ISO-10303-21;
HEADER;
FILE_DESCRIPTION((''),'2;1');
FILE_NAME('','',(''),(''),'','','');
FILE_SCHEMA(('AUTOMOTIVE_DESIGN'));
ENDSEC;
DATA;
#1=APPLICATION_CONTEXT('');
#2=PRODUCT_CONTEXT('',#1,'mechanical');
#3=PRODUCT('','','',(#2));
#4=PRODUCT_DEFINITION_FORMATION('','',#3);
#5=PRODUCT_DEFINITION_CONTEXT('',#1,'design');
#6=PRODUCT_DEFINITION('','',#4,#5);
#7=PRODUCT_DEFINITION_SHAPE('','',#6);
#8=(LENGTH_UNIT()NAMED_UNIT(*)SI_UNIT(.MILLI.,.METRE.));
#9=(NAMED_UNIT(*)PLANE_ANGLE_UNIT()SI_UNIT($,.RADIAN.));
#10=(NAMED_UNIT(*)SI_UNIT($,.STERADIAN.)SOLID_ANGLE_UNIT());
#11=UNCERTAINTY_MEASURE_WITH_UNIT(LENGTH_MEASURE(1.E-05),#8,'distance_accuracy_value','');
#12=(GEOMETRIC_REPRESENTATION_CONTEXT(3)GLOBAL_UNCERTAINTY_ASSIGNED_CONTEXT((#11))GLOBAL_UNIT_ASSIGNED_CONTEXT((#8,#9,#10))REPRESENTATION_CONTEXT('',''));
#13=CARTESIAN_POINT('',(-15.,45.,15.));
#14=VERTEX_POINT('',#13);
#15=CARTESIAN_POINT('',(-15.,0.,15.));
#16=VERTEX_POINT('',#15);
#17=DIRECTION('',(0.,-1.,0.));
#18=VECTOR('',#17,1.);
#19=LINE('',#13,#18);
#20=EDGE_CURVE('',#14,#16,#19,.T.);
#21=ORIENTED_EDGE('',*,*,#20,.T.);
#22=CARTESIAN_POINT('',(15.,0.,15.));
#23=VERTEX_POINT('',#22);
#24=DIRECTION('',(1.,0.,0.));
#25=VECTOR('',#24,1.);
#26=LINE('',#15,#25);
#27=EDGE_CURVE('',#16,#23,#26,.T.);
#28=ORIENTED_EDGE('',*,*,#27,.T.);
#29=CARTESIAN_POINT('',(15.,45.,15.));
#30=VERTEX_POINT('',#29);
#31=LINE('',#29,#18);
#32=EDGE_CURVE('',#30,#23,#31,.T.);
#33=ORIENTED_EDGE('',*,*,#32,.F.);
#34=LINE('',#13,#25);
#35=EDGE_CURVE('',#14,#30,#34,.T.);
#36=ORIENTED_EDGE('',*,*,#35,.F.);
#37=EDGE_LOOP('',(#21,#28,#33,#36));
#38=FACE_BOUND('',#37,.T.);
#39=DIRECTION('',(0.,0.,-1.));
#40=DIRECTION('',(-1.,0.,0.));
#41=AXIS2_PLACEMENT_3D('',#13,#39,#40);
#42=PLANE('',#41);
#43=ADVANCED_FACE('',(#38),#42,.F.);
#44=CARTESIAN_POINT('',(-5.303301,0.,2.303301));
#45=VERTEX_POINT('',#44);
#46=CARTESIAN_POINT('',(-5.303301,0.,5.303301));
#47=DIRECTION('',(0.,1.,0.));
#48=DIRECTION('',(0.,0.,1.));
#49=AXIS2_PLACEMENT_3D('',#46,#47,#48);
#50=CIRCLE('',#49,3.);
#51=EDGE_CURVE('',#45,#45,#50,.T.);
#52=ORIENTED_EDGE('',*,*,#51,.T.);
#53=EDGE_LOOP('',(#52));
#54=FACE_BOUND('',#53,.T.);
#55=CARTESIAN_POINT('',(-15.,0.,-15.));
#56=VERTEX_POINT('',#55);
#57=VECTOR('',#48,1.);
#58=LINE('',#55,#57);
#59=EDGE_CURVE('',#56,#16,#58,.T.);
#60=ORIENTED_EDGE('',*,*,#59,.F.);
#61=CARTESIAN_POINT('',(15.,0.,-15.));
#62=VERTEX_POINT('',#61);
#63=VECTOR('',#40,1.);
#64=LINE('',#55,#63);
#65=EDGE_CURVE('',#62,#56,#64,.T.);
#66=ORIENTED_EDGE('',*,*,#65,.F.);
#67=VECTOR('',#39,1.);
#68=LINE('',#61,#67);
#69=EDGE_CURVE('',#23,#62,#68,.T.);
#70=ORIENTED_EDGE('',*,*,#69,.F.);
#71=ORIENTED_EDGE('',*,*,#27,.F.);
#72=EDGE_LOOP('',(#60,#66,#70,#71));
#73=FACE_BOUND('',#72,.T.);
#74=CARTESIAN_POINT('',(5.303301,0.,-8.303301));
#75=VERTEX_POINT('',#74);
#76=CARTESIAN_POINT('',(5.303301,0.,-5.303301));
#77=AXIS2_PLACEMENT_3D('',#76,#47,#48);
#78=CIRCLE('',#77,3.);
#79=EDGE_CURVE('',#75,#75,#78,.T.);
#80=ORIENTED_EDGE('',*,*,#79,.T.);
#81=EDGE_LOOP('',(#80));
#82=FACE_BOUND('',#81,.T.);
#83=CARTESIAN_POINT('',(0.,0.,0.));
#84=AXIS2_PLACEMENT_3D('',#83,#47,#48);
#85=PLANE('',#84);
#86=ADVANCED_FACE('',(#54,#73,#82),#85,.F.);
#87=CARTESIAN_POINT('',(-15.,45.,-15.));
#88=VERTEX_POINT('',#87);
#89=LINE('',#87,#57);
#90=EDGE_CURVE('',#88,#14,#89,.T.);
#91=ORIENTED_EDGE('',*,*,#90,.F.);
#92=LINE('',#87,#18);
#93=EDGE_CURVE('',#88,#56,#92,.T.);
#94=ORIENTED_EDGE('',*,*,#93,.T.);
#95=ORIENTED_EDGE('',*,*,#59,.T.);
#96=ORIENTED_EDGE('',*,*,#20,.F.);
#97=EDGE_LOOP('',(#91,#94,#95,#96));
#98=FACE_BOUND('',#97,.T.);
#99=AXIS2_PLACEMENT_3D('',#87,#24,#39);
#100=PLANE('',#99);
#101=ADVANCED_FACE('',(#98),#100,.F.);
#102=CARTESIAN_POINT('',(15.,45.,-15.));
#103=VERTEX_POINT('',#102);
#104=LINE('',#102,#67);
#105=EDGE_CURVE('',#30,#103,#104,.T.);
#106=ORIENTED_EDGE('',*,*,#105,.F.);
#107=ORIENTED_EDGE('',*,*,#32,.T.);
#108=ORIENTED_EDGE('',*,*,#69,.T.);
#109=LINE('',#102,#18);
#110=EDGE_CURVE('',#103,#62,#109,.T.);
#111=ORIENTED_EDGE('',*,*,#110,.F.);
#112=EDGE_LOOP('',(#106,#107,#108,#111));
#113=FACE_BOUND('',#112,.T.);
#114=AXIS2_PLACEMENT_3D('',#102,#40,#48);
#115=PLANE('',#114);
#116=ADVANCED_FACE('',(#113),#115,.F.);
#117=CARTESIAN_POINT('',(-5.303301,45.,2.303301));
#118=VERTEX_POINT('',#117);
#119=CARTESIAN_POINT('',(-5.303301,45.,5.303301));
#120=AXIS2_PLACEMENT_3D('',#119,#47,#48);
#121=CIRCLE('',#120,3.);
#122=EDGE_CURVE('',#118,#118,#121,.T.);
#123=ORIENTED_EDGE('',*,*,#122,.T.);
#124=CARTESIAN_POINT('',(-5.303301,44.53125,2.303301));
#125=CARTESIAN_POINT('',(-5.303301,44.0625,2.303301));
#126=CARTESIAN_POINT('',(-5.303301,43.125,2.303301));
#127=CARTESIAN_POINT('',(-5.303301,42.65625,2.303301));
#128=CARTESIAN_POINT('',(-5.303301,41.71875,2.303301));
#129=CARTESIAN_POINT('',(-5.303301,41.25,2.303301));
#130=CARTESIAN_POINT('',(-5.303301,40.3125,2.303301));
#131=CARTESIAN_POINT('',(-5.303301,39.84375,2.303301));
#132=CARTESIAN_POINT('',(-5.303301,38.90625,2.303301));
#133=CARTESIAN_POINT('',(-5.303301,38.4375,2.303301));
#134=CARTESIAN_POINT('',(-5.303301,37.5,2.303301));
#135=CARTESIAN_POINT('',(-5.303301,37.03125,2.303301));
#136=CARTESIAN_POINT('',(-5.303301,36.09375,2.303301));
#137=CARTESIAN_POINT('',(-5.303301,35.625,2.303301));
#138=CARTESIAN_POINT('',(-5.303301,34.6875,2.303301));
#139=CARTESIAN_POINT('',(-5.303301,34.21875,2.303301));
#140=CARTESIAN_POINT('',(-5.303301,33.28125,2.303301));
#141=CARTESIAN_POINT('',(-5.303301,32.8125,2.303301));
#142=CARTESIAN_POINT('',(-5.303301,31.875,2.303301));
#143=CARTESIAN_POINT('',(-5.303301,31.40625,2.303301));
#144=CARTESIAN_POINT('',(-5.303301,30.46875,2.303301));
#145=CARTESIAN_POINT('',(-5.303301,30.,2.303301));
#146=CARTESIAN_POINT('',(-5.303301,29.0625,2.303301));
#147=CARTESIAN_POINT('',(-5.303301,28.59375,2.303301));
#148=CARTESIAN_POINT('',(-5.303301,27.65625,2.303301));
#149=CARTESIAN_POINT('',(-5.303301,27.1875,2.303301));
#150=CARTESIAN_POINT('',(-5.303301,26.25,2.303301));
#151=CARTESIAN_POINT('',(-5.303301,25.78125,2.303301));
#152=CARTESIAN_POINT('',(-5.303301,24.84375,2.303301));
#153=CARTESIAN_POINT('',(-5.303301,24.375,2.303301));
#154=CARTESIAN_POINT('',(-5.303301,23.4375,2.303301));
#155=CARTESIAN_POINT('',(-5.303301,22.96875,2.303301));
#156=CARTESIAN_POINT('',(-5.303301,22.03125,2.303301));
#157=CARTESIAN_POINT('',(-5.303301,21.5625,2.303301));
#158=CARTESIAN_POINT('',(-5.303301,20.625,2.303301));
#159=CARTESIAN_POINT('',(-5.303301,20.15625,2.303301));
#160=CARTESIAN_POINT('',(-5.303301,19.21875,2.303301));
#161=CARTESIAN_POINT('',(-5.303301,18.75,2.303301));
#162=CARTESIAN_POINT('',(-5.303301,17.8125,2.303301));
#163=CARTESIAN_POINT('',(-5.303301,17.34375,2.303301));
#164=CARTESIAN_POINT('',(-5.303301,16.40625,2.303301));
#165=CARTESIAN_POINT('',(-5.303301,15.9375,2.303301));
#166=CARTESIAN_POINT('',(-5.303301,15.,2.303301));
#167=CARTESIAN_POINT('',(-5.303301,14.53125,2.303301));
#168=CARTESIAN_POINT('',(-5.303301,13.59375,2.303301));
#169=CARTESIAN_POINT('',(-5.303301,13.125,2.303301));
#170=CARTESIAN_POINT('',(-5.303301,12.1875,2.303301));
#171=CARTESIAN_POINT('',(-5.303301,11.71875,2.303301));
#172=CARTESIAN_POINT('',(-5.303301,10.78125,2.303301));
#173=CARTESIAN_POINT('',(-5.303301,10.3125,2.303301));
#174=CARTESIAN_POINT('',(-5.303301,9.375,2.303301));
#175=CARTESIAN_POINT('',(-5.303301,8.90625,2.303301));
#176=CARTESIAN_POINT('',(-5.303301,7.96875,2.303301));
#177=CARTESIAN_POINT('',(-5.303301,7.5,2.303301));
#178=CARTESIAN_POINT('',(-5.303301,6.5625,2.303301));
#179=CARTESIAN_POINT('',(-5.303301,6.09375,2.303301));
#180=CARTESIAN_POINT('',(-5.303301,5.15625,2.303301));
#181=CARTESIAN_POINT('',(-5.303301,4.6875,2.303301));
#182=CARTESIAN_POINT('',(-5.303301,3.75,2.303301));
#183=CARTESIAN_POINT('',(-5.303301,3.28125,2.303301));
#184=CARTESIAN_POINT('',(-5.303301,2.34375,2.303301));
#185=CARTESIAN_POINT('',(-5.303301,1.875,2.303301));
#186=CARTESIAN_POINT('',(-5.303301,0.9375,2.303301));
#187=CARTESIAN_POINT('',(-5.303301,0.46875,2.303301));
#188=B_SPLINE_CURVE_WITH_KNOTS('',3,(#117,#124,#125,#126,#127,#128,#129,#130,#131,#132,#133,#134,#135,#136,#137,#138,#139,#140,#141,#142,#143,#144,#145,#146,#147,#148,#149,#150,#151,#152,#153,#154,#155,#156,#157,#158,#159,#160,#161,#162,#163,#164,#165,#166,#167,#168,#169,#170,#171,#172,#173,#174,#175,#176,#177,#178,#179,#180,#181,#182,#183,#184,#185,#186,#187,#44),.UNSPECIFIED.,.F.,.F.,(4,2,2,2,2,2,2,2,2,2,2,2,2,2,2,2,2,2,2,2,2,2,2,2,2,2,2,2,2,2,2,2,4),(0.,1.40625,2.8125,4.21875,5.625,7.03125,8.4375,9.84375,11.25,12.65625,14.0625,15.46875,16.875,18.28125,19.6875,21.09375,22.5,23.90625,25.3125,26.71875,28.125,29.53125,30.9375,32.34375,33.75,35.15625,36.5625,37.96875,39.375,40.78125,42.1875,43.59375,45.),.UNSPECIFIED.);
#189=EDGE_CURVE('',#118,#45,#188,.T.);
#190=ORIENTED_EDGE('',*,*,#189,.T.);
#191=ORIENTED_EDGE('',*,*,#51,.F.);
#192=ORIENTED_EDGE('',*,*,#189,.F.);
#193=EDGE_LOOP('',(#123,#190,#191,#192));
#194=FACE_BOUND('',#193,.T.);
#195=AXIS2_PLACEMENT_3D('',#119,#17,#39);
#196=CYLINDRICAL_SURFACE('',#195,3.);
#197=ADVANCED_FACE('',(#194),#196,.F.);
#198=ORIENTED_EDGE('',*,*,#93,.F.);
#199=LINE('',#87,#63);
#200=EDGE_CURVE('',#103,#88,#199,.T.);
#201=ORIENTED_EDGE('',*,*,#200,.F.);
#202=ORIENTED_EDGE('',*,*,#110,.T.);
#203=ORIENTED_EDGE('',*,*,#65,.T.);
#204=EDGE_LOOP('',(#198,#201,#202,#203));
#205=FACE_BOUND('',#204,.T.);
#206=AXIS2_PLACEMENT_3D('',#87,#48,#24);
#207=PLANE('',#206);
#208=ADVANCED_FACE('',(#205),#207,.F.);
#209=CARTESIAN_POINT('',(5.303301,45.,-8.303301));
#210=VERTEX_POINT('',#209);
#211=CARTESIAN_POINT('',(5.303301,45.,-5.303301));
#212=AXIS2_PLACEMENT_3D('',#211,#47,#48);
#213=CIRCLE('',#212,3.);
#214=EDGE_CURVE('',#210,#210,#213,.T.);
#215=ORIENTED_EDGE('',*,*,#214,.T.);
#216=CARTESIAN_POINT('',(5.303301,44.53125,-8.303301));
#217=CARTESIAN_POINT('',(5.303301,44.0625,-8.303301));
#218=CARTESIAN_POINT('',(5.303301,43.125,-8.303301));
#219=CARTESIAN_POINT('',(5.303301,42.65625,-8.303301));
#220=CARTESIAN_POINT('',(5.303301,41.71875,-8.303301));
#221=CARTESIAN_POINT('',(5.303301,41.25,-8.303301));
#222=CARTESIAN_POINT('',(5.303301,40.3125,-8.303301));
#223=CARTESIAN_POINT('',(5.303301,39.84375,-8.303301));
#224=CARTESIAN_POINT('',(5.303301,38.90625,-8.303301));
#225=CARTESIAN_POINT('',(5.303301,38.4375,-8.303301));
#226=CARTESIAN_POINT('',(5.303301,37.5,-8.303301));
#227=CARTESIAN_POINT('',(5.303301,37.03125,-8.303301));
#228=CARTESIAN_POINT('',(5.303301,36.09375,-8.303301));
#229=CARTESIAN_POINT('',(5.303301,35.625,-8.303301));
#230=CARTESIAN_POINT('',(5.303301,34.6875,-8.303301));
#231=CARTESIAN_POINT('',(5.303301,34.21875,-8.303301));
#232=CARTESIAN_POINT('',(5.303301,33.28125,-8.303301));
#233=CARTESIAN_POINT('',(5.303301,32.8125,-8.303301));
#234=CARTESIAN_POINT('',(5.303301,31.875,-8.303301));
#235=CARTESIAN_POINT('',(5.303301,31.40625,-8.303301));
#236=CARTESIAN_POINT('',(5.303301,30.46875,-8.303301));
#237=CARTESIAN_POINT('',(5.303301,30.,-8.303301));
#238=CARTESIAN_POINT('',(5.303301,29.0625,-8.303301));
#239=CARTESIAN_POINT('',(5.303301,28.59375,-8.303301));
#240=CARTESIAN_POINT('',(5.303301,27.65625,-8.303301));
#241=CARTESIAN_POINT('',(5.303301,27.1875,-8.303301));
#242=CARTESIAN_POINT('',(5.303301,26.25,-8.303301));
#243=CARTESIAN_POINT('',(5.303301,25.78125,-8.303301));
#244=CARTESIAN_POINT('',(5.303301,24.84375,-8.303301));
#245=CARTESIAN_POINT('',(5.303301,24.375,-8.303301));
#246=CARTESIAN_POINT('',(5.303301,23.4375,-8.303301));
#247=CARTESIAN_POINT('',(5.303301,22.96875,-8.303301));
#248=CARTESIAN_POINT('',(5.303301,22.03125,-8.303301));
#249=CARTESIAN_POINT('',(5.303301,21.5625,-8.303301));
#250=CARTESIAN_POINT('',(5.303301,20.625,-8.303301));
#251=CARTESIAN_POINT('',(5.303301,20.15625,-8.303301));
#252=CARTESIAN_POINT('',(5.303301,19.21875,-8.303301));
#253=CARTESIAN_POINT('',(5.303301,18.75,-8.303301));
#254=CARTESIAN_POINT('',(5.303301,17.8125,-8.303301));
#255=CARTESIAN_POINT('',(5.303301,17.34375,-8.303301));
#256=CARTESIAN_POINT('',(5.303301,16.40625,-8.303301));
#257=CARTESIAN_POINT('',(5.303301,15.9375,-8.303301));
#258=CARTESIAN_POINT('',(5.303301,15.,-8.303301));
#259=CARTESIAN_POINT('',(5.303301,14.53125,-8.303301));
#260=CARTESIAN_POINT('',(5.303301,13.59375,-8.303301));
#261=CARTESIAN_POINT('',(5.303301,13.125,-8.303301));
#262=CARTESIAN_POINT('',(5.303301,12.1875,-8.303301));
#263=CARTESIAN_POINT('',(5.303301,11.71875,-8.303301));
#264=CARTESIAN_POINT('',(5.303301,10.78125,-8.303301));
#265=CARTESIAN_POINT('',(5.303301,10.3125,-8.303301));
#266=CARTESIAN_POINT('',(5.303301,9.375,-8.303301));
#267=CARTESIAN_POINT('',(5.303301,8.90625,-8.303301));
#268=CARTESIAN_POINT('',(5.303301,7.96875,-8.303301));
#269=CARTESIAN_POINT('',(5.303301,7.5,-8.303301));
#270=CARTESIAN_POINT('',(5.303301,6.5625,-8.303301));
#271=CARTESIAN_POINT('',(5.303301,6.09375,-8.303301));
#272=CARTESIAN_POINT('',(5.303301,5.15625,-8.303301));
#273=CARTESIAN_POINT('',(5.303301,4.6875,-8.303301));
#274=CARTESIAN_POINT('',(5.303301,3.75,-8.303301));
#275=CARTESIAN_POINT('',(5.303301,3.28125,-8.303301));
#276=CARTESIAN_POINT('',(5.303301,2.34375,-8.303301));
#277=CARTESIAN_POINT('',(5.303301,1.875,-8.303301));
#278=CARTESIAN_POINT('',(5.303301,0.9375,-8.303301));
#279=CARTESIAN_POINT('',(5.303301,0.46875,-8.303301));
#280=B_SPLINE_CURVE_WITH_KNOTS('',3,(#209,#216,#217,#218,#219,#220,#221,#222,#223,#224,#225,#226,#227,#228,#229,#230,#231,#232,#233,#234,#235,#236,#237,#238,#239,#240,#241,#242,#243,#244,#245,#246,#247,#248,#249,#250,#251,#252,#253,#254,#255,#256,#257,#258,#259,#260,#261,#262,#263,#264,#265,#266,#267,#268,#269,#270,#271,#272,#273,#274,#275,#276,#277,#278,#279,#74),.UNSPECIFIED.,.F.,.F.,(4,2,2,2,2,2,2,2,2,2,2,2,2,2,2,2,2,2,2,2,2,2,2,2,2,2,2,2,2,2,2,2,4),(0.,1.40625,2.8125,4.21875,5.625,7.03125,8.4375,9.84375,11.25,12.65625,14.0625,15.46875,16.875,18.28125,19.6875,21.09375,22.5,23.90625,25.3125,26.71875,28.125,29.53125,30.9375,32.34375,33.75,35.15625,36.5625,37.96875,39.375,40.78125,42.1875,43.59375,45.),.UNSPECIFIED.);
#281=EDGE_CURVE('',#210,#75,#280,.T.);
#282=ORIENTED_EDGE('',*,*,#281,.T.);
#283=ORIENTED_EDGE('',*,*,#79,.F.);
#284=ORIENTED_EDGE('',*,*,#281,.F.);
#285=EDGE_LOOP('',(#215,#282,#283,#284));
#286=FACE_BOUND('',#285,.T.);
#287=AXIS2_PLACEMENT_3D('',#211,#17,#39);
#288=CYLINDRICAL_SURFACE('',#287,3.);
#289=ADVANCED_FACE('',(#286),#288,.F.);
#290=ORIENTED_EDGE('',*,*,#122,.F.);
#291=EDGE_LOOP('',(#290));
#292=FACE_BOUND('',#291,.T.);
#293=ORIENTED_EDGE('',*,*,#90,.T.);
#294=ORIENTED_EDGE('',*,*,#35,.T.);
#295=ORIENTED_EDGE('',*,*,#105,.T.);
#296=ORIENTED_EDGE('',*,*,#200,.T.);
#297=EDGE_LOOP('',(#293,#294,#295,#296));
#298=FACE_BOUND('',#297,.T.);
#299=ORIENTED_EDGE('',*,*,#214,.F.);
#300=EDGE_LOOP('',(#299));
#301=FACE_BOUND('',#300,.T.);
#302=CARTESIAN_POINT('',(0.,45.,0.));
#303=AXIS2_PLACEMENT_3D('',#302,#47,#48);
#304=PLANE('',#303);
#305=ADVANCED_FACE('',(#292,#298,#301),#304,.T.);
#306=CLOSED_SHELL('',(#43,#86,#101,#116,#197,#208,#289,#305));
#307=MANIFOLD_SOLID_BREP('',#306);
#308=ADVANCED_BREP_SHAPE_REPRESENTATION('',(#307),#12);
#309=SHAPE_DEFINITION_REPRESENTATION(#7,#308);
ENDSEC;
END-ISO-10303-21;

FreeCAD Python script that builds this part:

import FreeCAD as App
import Part
import Sketcher

V = App.Vector
Q = App.Units.Quantity

doc = App.newDocument("Part")
params = doc.addObject("Spreadsheet::Sheet", "Params")
for row, (alias, value) in enumerate([
    ("sketch1_diameter", "6 mm"),
    ("sketch1_width", "30 mm"),
    ("pad1_length", "45 mm"),
], start=1):
    params.set(f"A{row}", alias)
    params.set(f"B{row}", "=" + value)
    params.setAlias(f"B{row}", alias)

body = doc.addObject("PartDesign::Body", "Body")

sketch1 = body.newObject("Sketcher::SketchObject", "Sketch")
sketch1.AttachmentSupport = (doc.getObject("XZ_Plane"), [""])
sketch1.MapMode = "FlatFace"
sketch1.addGeometry([
    Part.LineSegment(V(-15, -15, 0), V(-15, 15, 0)),
    Part.LineSegment(V(-15, 15, 0), V(15, 15, 0)),
    Part.LineSegment(V(15, 15, 0), V(15, -15, 0)),
    Part.LineSegment(V(15, -15, 0), V(-15, -15, 0)),
    Part.Circle(V(-5.3, 5.3, 0), V(0, 0, 1), 3),
    Part.Circle(V(5.3, -5.3, 0), V(0, 0, 1), 3),
], False)
sketch1.addConstraint([
    Sketcher.Constraint("Coincident", 0, 2, 1, 1),
    Sketcher.Constraint("Coincident", 1, 2, 2, 1),
    Sketcher.Constraint("Coincident", 2, 2, 3, 1),
    Sketcher.Constraint("Coincident", 3, 2, 0, 1),
    Sketcher.Constraint("Vertical", 0),
    Sketcher.Constraint("Horizontal", 1),
    Sketcher.Constraint("Vertical", 2),
    Sketcher.Constraint("Horizontal", 3),
    Sketcher.Constraint("Equal", 4, 5),
    Sketcher.Constraint("Symmetric", 4, 3, 5, 3, -1, 1),
    Sketcher.Constraint("Symmetric", 0, 2, 2, 2, -1, 1),
    Sketcher.Constraint("Equal", 3, 0),
    Sketcher.Constraint("Diameter", 4, Q("6 mm")),
    Sketcher.Constraint("DistanceX", 1, 1, 1, 2, Q("30 mm")),
    Sketcher.Constraint("DistanceX", 4, 3, -1, 1, Q("5.303301 mm")),
    Sketcher.Constraint("DistanceY", -1, 1, 4, 3, Q("5.303301 mm")),
])
sketch1.setExpression("Constraints[12]", "Params.sketch1_diameter")
sketch1.setExpression("Constraints[13]", "Params.sketch1_width")
pad1 = body.newObject("PartDesign::Pad", "Pad")
pad1.Profile = sketch1
pad1.setExpression("Length", "Params.pad1_length")
pad1.Reversed = True

doc.recompute()
